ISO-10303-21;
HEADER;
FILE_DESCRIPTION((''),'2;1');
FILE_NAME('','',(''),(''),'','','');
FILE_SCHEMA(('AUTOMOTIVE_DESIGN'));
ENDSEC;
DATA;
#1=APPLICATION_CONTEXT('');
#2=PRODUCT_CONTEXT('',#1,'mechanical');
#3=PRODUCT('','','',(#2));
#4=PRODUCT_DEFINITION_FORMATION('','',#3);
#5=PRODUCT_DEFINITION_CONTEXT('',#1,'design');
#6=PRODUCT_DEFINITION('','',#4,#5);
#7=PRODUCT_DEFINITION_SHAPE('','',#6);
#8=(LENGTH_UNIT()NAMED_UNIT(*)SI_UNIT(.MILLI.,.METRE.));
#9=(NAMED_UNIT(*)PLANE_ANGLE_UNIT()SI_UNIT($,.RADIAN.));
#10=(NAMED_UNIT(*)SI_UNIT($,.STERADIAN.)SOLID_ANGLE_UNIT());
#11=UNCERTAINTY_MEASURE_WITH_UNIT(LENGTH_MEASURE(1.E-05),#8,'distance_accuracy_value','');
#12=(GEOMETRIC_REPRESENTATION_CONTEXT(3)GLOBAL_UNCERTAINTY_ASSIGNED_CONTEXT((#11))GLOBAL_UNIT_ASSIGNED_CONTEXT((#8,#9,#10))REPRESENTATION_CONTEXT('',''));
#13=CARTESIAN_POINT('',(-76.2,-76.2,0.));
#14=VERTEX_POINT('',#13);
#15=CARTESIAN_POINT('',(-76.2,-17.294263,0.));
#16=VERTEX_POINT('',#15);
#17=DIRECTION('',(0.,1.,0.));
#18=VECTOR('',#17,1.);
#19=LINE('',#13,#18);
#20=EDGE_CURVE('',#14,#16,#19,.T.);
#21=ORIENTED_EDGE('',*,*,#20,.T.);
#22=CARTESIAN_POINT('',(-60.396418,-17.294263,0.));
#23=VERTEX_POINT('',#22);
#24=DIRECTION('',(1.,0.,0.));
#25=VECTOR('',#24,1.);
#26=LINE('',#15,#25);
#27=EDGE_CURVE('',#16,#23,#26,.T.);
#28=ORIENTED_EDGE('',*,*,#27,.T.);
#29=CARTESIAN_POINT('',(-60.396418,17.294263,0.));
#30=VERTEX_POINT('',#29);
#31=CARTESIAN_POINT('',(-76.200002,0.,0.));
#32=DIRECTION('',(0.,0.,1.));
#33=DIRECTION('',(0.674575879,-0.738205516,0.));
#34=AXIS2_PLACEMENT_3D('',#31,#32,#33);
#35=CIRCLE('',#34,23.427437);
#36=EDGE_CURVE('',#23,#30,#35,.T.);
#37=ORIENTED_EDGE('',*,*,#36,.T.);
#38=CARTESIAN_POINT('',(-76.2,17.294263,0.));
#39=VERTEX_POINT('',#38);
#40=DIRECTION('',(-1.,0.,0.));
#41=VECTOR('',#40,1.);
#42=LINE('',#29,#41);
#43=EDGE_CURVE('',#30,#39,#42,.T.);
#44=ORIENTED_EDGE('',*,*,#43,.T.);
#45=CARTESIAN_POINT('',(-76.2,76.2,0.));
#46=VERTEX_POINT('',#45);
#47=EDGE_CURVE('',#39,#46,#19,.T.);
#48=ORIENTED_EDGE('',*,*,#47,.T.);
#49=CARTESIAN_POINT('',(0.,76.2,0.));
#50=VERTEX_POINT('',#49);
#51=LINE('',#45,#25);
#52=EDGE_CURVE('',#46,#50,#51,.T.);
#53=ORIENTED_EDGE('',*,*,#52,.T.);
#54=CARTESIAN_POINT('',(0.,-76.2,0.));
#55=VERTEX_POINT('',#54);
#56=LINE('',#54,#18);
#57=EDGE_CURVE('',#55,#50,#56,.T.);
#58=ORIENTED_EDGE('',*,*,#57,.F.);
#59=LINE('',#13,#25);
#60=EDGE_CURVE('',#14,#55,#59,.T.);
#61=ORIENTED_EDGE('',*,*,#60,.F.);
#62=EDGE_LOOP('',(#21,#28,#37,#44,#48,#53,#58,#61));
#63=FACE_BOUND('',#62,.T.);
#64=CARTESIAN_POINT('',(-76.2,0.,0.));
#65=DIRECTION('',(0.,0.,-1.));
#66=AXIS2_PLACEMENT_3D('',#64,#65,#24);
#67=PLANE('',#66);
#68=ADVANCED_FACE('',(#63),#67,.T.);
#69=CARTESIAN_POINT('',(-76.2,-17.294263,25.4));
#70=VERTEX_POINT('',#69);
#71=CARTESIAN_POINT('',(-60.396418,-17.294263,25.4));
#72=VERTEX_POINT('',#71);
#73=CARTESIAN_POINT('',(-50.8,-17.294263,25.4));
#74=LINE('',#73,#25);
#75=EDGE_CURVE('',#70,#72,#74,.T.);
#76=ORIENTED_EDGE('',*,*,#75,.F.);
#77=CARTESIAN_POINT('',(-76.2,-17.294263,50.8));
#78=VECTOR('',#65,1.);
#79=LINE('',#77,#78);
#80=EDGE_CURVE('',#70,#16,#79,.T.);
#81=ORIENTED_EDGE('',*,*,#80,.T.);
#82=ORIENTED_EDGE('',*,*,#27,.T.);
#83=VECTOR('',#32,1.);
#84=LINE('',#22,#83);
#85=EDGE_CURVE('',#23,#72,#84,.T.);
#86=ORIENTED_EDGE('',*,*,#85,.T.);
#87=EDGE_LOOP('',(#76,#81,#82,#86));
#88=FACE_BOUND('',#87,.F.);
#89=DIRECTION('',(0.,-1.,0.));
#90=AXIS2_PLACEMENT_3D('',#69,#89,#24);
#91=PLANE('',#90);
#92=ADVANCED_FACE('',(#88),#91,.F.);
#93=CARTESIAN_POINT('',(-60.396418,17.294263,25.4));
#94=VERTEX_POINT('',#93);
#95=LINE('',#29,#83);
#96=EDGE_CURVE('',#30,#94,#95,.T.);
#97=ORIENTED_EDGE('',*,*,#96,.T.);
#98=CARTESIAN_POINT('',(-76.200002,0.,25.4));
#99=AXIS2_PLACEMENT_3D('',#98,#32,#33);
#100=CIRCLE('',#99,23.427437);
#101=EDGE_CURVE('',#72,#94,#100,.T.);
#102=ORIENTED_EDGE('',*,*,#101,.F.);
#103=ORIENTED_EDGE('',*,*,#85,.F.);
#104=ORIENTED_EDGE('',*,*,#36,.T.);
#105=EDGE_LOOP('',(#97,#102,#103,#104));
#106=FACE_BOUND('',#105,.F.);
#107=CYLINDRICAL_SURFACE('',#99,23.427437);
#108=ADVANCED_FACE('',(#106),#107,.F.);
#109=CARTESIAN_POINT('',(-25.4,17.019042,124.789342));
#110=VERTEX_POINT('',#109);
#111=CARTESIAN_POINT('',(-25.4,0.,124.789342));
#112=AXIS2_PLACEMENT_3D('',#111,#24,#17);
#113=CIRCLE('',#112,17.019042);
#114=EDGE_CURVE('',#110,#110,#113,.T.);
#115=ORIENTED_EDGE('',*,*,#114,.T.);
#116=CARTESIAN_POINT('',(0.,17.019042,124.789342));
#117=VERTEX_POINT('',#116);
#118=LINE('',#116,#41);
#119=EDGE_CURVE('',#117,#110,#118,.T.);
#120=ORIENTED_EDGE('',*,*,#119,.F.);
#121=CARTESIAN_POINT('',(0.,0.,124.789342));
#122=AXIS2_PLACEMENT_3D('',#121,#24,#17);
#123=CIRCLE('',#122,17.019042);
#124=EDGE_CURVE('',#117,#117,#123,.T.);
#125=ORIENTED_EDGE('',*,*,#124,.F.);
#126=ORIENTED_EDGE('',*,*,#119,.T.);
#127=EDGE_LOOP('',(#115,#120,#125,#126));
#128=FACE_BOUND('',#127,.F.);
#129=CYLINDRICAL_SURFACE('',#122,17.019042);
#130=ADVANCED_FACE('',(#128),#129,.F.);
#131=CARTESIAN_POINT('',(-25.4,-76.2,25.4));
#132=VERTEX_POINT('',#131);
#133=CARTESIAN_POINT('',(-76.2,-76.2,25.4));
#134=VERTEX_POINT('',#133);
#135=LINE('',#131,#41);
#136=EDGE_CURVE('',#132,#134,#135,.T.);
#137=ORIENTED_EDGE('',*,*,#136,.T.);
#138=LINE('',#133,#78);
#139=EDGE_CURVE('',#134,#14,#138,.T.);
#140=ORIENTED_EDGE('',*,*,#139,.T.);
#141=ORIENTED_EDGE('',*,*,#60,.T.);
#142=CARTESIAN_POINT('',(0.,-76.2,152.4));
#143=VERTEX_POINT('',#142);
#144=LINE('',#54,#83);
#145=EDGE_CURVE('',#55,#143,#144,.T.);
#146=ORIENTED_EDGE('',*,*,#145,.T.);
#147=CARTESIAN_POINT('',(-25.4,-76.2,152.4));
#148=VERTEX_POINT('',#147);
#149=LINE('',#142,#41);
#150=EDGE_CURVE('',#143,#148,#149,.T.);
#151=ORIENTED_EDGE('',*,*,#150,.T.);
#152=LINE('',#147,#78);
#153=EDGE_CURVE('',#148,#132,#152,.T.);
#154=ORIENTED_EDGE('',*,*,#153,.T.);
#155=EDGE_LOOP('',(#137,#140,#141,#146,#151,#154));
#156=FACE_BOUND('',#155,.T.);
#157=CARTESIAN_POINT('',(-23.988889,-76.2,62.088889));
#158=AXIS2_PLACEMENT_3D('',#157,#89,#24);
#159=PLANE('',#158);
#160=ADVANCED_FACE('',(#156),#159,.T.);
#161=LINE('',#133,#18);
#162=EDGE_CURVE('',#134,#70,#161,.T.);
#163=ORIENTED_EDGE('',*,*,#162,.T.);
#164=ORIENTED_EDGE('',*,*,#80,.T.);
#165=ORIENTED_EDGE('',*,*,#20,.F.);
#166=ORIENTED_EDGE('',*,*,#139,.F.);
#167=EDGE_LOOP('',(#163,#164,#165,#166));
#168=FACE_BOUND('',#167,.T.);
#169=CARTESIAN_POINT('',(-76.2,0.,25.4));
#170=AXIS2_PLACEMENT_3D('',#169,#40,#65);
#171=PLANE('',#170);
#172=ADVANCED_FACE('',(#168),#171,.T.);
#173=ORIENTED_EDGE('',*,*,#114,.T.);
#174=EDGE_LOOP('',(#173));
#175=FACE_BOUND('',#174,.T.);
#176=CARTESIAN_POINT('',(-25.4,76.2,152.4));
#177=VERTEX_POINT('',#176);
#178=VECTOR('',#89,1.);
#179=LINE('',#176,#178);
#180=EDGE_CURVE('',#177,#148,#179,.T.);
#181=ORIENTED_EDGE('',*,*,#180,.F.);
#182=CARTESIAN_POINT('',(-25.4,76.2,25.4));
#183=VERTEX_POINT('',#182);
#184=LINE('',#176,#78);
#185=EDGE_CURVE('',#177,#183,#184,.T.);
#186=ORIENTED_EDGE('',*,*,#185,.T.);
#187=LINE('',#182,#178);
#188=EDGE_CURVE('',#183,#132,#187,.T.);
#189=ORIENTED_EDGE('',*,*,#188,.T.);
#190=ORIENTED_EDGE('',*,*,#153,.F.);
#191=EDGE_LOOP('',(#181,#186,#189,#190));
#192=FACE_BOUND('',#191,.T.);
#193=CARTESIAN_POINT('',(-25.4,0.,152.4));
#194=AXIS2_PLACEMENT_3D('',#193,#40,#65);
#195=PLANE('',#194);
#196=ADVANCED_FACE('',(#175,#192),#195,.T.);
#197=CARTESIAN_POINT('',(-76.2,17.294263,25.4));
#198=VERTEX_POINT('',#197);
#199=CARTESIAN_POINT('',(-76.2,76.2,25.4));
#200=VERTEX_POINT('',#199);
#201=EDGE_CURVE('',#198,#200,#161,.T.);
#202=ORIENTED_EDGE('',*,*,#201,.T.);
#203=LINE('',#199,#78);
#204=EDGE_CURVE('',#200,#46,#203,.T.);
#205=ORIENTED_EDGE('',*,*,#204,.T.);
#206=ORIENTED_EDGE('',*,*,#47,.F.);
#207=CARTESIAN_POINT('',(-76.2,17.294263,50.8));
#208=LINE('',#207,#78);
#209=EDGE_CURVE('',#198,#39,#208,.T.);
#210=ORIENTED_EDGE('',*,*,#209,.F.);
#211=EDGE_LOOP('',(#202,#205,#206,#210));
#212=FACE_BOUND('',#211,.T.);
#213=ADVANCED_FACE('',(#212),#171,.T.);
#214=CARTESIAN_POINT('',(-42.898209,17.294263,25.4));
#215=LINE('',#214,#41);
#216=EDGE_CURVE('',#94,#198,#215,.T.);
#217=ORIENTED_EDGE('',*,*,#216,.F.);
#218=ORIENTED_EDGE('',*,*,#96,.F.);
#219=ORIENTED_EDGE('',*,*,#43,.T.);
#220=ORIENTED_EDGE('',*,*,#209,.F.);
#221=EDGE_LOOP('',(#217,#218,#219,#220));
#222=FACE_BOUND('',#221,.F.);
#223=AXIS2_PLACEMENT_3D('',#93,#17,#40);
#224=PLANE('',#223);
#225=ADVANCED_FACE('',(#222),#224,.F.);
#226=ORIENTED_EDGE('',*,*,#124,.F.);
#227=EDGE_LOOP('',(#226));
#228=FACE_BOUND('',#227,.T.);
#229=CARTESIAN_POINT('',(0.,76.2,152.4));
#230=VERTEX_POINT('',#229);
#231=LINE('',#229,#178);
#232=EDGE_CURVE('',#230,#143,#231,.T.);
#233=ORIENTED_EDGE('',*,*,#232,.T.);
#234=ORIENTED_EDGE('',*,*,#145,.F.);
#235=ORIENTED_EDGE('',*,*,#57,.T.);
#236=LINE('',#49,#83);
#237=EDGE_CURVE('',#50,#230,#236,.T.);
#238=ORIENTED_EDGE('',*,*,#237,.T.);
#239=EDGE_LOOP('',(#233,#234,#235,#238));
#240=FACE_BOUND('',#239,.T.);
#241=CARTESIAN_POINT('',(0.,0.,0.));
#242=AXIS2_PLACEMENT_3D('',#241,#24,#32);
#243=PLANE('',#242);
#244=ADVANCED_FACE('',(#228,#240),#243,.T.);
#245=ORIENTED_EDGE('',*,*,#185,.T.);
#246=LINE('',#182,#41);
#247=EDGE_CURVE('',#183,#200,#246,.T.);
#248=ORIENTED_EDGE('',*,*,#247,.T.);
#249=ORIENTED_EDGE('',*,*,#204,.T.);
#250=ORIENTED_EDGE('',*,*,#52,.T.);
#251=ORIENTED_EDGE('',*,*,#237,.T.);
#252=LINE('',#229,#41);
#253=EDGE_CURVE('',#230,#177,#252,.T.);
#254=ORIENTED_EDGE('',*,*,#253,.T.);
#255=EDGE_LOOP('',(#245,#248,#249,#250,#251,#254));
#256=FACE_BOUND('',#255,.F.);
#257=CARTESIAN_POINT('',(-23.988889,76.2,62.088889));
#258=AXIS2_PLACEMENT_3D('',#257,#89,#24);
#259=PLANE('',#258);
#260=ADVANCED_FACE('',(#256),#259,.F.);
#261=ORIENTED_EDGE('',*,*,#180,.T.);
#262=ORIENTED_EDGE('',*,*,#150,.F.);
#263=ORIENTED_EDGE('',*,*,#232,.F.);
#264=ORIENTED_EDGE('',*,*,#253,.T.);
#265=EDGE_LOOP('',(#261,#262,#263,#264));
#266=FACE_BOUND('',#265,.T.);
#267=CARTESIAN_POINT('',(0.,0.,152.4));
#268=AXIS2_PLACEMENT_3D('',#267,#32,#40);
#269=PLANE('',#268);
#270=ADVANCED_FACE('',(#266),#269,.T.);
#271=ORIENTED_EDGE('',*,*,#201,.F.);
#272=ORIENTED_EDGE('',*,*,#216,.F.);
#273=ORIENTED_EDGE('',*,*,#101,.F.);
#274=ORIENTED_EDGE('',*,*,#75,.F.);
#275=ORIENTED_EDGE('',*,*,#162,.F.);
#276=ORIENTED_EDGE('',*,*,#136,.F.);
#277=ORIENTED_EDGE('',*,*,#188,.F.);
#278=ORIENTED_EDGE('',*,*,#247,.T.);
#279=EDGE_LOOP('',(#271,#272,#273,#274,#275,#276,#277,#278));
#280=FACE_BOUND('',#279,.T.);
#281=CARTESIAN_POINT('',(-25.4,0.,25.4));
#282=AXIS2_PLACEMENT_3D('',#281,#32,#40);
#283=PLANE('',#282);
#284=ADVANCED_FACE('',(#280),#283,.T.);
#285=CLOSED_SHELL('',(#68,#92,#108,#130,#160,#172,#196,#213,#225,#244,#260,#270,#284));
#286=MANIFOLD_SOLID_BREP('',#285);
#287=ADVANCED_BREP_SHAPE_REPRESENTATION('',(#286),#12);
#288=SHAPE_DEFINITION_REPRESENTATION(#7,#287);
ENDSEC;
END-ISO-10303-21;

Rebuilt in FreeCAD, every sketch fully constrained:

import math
import FreeCAD as App
import Part
import Sketcher
Q = App.Units.Quantity


def add_polygon(sketch, points):
    """Adds a closed chain of lines whose ends are joined by coincident constraints."""
    first, n = sketch.GeometryCount, len(points)
    for a, b in zip(points, points[1:] + points[:1]):
        sketch.addGeometry(Part.LineSegment(App.Vector(*a, 0), App.Vector(*b, 0)), False)
    for i in range(n):
        sketch.addConstraint(Sketcher.Constraint("Coincident", first + i, 2, first + (i + 1) % n, 1))

doc = App.newDocument("Part")
body = doc.addObject("PartDesign::Body", "Body")

# Sketch on XZ plane
sketch1 = doc.addObject("Sketcher::SketchObject", "Sketch")
body.addObject(sketch1)
sketch1.AttachmentSupport = (doc.XZ_Plane, [""])
sketch1.MapMode = "FlatFace"
add_polygon(sketch1, [(0, 0), (0, 152), (-25, 152), (-25, 25), (-76, 25), (-76, 0)])  # lines 0-5
sketch1.addConstraint([
    Sketcher.Constraint("Vertical", 0),
    Sketcher.Constraint("Horizontal", 1),
    Sketcher.Constraint("Vertical", 2),
    Sketcher.Constraint("Horizontal", 3),
    Sketcher.Constraint("Vertical", 4),
    Sketcher.Constraint("Horizontal", 5),
    Sketcher.Constraint("Coincident", 5, 2, -1, 1),
    Sketcher.Constraint("Equal", 1, 4),
    Sketcher.Constraint("DistanceX", 1, 2, 1, 1, Q("1 in")),
    Sketcher.Constraint("DistanceX", 3, 2, 3, 1, Q("2 in")),
    Sketcher.Constraint("DistanceY", 0, 1, 0, 2, Q("6 in")),
])
pad1 = doc.addObject("PartDesign::Pad", "Pad")
body.addObject(pad1)
pad1.Profile = sketch1
pad1.Length = Q("6 in")
pad1.Midplane = True

# Sketch on YZ plane
sketch2 = doc.addObject("Sketcher::SketchObject", "Sketch001")
body.addObject(sketch2)
sketch2.AttachmentSupport = (doc.YZ_Plane, [""])
sketch2.MapMode = "FlatFace"
sketch2.addGeometry(Part.Circle(App.Vector(0, 125, 0), App.Vector(0, 0, 1), 17), False)
sketch2.addConstraint([
    Sketcher.Constraint("PointOnObject", 0, 3, -2),
    Sketcher.Constraint("Diameter", 0, Q("34.038084 mm")),
    Sketcher.Constraint("DistanceY", -1, 1, 0, 3, Q("124.789342 mm")),
])
pocket1 = doc.addObject("PartDesign::Pocket", "Pocket")
body.addObject(pocket1)
pocket1.Profile = sketch2
pocket1.Length = Q("1.5 in")

# Sketch on XY plane
sketch3 = doc.addObject("Sketcher::SketchObject", "Sketch002")
body.addObject(sketch3)
sketch3.AttachmentSupport = (doc.XY_Plane, [""])
sketch3.MapMode = "FlatFace"
sketch3.AttachmentOffset = App.Placement(App.Vector(0, 0, 1 * 25.4), App.Rotation())
sketch3.addGeometry([
    Part.LineSegment(App.Vector(-76, -17, 0), App.Vector(-60, -17, 0)),
    Part.ArcOfCircle(Part.Circle(App.Vector(-76, 0, 0), App.Vector(0, 0, 1), 23), math.radians(-48), math.radians(48)),
    Part.LineSegment(App.Vector(-60, 17, 0), App.Vector(-76, 17, 0)),
    Part.LineSegment(App.Vector(-76, 17, 0), App.Vector(-76, -17, 0)),
], False)
sketch3.addConstraint([
    Sketcher.Constraint("Coincident", 0, 2, 1, 1),
    Sketcher.Constraint("Coincident", 1, 2, 2, 1),
    Sketcher.Constraint("Coincident", 2, 2, 3, 1),
    Sketcher.Constraint("Coincident", 3, 2, 0, 1),
    Sketcher.Constraint("Horizontal", 0),
    Sketcher.Constraint("Horizontal", 2),
    Sketcher.Constraint("Vertical", 3),
    Sketcher.Constraint("Symmetric", 0, 2, 1, 2, -1),
    Sketcher.Constraint("Vertical", 1, 3, 2, 2),
    Sketcher.Constraint("DistanceX", 1, 3, -1, 1, Q("3.0000001 in")),
    Sketcher.Constraint("Radius", 1, Q("23.427437 mm")),
    Sketcher.Constraint("DistanceX", 0, 1, 0, 2, Q("15.803582 mm")),
])
pocket2 = doc.addObject("PartDesign::Pocket", "Pocket001")
body.addObject(pocket2)
pocket2.Profile = sketch3
pocket2.Length = Q("2 in")
pocket2.Midplane = True

doc.recompute()
